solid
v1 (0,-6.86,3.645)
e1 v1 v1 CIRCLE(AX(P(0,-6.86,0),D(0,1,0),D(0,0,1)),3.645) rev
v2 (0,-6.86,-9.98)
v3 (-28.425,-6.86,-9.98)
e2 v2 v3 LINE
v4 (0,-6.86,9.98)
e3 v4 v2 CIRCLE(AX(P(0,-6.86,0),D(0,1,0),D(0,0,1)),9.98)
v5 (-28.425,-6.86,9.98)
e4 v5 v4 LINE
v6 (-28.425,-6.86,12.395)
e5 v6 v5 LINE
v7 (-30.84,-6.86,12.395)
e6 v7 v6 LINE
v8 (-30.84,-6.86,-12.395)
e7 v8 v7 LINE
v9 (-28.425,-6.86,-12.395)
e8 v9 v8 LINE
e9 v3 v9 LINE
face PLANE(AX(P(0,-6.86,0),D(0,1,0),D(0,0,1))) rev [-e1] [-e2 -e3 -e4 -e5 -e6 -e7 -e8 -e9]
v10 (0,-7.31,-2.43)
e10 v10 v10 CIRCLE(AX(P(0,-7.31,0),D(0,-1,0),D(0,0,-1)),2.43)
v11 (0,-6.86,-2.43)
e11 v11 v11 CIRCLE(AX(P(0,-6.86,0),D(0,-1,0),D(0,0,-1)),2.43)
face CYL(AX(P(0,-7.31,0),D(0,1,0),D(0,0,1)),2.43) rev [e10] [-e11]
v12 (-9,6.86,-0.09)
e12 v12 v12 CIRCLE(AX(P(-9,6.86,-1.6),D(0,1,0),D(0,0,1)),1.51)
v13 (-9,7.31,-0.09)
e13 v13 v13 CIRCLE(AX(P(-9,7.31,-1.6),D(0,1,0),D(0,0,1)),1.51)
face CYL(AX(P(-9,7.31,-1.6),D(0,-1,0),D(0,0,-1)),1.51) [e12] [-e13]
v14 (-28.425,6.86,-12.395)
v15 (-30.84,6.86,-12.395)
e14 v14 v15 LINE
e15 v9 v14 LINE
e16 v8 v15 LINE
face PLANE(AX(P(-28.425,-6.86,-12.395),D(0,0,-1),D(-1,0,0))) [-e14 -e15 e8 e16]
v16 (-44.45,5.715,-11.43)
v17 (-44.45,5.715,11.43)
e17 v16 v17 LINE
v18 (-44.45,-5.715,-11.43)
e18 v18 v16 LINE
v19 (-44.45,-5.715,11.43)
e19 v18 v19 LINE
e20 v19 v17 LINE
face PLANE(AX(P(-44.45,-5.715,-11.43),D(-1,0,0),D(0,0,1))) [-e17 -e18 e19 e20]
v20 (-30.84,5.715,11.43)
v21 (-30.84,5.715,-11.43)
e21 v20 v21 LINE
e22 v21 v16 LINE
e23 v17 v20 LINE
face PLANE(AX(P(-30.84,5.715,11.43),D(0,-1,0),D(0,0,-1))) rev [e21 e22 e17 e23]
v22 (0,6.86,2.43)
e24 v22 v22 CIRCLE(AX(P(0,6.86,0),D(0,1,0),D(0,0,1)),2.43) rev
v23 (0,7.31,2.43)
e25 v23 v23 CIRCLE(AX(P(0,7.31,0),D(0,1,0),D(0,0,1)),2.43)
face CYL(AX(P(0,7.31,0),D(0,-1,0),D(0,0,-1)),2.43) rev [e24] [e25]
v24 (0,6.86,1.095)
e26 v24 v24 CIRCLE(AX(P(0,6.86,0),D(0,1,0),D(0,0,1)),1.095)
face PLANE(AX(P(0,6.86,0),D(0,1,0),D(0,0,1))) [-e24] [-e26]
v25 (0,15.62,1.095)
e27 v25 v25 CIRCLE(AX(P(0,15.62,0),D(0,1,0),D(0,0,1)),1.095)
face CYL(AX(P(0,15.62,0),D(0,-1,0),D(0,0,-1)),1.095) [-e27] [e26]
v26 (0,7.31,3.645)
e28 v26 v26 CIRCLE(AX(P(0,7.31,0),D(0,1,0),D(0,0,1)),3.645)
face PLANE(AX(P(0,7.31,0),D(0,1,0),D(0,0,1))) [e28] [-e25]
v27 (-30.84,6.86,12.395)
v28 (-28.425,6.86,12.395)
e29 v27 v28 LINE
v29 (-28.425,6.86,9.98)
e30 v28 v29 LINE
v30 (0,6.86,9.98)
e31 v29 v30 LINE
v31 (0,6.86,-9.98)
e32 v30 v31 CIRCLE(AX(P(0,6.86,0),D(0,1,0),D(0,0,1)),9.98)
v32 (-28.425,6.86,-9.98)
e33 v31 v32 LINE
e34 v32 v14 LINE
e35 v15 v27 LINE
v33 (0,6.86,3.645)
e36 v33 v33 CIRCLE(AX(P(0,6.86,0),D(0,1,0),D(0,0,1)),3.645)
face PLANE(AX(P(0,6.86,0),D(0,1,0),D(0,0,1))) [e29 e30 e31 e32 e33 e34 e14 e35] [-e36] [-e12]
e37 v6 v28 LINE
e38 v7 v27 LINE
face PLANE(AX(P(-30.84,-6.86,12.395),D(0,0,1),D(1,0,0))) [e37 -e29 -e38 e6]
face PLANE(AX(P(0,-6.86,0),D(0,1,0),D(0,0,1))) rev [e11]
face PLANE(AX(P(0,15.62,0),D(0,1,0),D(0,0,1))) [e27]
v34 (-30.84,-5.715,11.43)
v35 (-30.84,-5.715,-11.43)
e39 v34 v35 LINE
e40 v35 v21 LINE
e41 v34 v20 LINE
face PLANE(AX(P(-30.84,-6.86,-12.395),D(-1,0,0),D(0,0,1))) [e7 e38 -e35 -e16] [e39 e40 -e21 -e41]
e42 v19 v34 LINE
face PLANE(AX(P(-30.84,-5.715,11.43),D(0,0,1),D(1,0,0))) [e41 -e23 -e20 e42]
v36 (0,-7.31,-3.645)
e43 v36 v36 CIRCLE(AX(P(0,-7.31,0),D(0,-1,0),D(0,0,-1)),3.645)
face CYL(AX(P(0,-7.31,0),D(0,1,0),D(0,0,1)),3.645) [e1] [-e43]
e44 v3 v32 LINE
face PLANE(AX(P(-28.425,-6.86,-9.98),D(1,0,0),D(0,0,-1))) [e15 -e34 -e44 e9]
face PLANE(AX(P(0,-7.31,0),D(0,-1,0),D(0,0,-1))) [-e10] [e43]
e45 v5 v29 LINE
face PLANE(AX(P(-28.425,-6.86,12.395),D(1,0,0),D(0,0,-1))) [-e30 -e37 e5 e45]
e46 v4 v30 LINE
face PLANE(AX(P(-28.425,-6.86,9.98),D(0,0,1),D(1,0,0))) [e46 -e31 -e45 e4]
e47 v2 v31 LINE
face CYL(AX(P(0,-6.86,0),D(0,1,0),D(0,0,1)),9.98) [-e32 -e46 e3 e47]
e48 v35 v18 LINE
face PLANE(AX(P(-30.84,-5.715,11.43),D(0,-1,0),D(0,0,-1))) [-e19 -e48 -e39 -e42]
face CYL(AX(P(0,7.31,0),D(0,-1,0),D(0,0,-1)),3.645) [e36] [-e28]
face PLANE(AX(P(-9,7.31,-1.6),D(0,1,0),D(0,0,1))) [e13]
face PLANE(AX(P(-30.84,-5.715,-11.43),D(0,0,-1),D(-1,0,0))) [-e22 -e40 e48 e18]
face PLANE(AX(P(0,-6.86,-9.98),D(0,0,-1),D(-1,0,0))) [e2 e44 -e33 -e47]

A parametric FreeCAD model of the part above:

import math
import FreeCAD as App
import Part
import Sketcher
Q = App.Units.Quantity


def add_polygon(sketch, points):
    """Adds a closed chain of lines whose ends are joined by coincident constraints."""
    first, n = sketch.GeometryCount, len(points)
    for a, b in zip(points, points[1:] + points[:1]):
        sketch.addGeometry(Part.LineSegment(App.Vector(*a, 0), App.Vector(*b, 0)), False)
    for i in range(n):
        sketch.addConstraint(Sketcher.Constraint("Coincident", first + i, 2, first + (i + 1) % n, 1))

doc = App.newDocument("Part")
body = doc.addObject("PartDesign::Body", "Body")

sketch1 = body.newObject("Sketcher::SketchObject", "Sketch")
sketch1.AttachmentSupport = (doc.getObject("XZ_Plane"), [""])
sketch1.MapMode = "FlatFace"
sketch1.addGeometry([
    Part.LineSegment(App.Vector(0, -10, 0), App.Vector(-28.4, -10, 0)),
    Part.LineSegment(App.Vector(-28.4, -10, 0), App.Vector(-28.4, -12.4, 0)),
    Part.LineSegment(App.Vector(-28.4, -12.4, 0), App.Vector(-30.8, -12.4, 0)),
    Part.LineSegment(App.Vector(-30.8, -12.4, 0), App.Vector(-30.8, 12.4, 0)),
    Part.LineSegment(App.Vector(-30.8, 12.4, 0), App.Vector(-28.4, 12.4, 0)),
    Part.LineSegment(App.Vector(-28.4, 12.4, 0), App.Vector(-28.4, 10, 0)),
    Part.LineSegment(App.Vector(-28.4, 10, 0), App.Vector(0, 10, 0)),
    Part.ArcOfCircle(Part.Circle(App.Vector(0, 0, 0), App.Vector(0, 0, 1), 10), math.radians(-90), math.radians(90)),
], False)
sketch1.addConstraint([
    Sketcher.Constraint("Coincident", 0, 2, 1, 1),
    Sketcher.Constraint("Coincident", 1, 2, 2, 1),
    Sketcher.Constraint("Coincident", 2, 2, 3, 1),
    Sketcher.Constraint("Coincident", 3, 2, 4, 1),
    Sketcher.Constraint("Coincident", 4, 2, 5, 1),
    Sketcher.Constraint("Coincident", 5, 2, 6, 1),
    Sketcher.Constraint("Tangent", 6, 2, 7, 2),
    Sketcher.Constraint("Tangent", 7, 1, 0, 1),
    Sketcher.Constraint("Horizontal", 0),
    Sketcher.Constraint("Vertical", 1),
    Sketcher.Constraint("Horizontal", 2),
    Sketcher.Constraint("Vertical", 3),
    Sketcher.Constraint("Horizontal", 4),
    Sketcher.Constraint("Vertical", 5),
    Sketcher.Constraint("Horizontal", 6),
    Sketcher.Constraint("Coincident", 7, 3, -1, 1),
    Sketcher.Constraint("Symmetric", 1, 2, 4, 2, -1),
    Sketcher.Constraint("Equal", 4, 1),
    Sketcher.Constraint("Radius", 7, 9.98),
    Sketcher.Constraint("DistanceX", 0, 2, 0, 1, 28.425),
    Sketcher.Constraint("DistanceX", 2, 2, 2, 1, 2.415),
])
pad1 = body.newObject("PartDesign::Pad", "Pad")
pad1.Profile = sketch1
pad1.Type = "TwoLengths"
pad1.Length = 6.86
pad1.Length2 = 6.86
pad1.Reversed = True

sketch2 = body.newObject("Sketcher::SketchObject", "Sketch001")
sketch2.AttachmentSupport = (doc.getObject("XZ_Plane"), [""])
sketch2.MapMode = "FlatFace"
add_polygon(sketch2, [(-44, -11), (-44, 11), (-31, 11), (-31, -11)])
sketch2.addConstraint([
    Sketcher.Constraint("Vertical", 0),
    Sketcher.Constraint("Horizontal", 1),
    Sketcher.Constraint("Vertical", 2),
    Sketcher.Constraint("Horizontal", 3),
    Sketcher.Constraint("DistanceY", 0, 1, 0, 2, Q("0.9 in")),
    Sketcher.Constraint("DistanceX", 0, 2, -1, 1, Q("1.75 in")),
    Sketcher.Constraint("DistanceY", -1, 1, 0, 2, Q("0.45 in")),
    Sketcher.Constraint("DistanceX", 1, 1, 1, 2, 13.61),
])
pad2 = body.newObject("PartDesign::Pad", "Pad001")
pad2.Profile = sketch2
pad2.Type = "TwoLengths"
pad2.Length = Q("0.225 in")
pad2.Length2 = Q("0.225 in")
pad2.Reversed = True

sketch3 = body.newObject("Sketcher::SketchObject", "Sketch002")
sketch3.AttachmentSupport = (doc.getObject("XZ_Plane"), [""])
sketch3.MapMode = "FlatFace"
sketch3.AttachmentOffset = App.Placement(App.Vector(0, 0, -6.86), App.Rotation())
sketch3.addGeometry([
    Part.Circle(App.Vector(-9, -1.6, 0), App.Vector(0, 0, 1), 1.5),
    Part.Circle(App.Vector(0, 0, 0), App.Vector(0, 0, 1), 3.6),
    Part.Circle(App.Vector(0, 0, 0), App.Vector(0, 0, 1), 2.4),
], False)
sketch3.addConstraint([
    Sketcher.Constraint("Coincident", 1, 3, -1, 1),
    Sketcher.Constraint("Coincident", 2, 3, -1, 1),
    Sketcher.Constraint("Diameter", 0, 3.02),
    Sketcher.Constraint("Diameter", 1, 7.29),
    Sketcher.Constraint("Diameter", 2, 4.86),
    Sketcher.Constraint("DistanceX", 0, 3, -1, 1, 9.0),
    Sketcher.Constraint("DistanceY", 0, 3, -1, 1, 1.6),
])
pad3 = body.newObject("PartDesign::Pad", "Pad002")
pad3.Profile = sketch3
pad3.Length = 0.45
pad3.Reversed = True

sketch4 = body.newObject("Sketcher::SketchObject", "Sketch003")
sketch4.AttachmentSupport = (doc.getObject("XZ_Plane"), [""])
sketch4.MapMode = "FlatFace"
sketch4.AttachmentOffset = App.Placement(App.Vector(0, 0, 7.31), App.Rotation())
sketch4.addGeometry([
    Part.Circle(App.Vector(0, 0, 0), App.Vector(0, 0, 1), 3.6),
    Part.Circle(App.Vector(0, 0, 0), App.Vector(0, 0, 1), 2.4),
], False)
sketch4.addConstraint([
    Sketcher.Constraint("Coincident", 0, 3, -1, 1),
    Sketcher.Constraint("Coincident", 1, 3, -1, 1),
    Sketcher.Constraint("Diameter", 0, 7.29),
    Sketcher.Constraint("Diameter", 1, 4.86),
])
pad4 = body.newObject("PartDesign::Pad", "Pad003")
pad4.Profile = sketch4
pad4.Length = 0.45
pad4.Reversed = True

sketch5 = body.newObject("Sketcher::SketchObject", "Sketch004")
sketch5.AttachmentSupport = (doc.getObject("XZ_Plane"), [""])
sketch5.MapMode = "FlatFace"
sketch5.AttachmentOffset = App.Placement(App.Vector(0, 0, -6.86), App.Rotation())
sketch5.addGeometry(Part.Circle(App.Vector(0, 0, 0), App.Vector(0, 0, 1), 1.1), False)
sketch5.addConstraint([
    Sketcher.Constraint("Coincident", 0, 3, -1, 1),
    Sketcher.Constraint("Diameter", 0, 2.19),
])
pad5 = body.newObject("PartDesign::Pad", "Pad004")
pad5.Profile = sketch5
pad5.Length = 8.76
pad5.Reversed = True

doc.recompute()
